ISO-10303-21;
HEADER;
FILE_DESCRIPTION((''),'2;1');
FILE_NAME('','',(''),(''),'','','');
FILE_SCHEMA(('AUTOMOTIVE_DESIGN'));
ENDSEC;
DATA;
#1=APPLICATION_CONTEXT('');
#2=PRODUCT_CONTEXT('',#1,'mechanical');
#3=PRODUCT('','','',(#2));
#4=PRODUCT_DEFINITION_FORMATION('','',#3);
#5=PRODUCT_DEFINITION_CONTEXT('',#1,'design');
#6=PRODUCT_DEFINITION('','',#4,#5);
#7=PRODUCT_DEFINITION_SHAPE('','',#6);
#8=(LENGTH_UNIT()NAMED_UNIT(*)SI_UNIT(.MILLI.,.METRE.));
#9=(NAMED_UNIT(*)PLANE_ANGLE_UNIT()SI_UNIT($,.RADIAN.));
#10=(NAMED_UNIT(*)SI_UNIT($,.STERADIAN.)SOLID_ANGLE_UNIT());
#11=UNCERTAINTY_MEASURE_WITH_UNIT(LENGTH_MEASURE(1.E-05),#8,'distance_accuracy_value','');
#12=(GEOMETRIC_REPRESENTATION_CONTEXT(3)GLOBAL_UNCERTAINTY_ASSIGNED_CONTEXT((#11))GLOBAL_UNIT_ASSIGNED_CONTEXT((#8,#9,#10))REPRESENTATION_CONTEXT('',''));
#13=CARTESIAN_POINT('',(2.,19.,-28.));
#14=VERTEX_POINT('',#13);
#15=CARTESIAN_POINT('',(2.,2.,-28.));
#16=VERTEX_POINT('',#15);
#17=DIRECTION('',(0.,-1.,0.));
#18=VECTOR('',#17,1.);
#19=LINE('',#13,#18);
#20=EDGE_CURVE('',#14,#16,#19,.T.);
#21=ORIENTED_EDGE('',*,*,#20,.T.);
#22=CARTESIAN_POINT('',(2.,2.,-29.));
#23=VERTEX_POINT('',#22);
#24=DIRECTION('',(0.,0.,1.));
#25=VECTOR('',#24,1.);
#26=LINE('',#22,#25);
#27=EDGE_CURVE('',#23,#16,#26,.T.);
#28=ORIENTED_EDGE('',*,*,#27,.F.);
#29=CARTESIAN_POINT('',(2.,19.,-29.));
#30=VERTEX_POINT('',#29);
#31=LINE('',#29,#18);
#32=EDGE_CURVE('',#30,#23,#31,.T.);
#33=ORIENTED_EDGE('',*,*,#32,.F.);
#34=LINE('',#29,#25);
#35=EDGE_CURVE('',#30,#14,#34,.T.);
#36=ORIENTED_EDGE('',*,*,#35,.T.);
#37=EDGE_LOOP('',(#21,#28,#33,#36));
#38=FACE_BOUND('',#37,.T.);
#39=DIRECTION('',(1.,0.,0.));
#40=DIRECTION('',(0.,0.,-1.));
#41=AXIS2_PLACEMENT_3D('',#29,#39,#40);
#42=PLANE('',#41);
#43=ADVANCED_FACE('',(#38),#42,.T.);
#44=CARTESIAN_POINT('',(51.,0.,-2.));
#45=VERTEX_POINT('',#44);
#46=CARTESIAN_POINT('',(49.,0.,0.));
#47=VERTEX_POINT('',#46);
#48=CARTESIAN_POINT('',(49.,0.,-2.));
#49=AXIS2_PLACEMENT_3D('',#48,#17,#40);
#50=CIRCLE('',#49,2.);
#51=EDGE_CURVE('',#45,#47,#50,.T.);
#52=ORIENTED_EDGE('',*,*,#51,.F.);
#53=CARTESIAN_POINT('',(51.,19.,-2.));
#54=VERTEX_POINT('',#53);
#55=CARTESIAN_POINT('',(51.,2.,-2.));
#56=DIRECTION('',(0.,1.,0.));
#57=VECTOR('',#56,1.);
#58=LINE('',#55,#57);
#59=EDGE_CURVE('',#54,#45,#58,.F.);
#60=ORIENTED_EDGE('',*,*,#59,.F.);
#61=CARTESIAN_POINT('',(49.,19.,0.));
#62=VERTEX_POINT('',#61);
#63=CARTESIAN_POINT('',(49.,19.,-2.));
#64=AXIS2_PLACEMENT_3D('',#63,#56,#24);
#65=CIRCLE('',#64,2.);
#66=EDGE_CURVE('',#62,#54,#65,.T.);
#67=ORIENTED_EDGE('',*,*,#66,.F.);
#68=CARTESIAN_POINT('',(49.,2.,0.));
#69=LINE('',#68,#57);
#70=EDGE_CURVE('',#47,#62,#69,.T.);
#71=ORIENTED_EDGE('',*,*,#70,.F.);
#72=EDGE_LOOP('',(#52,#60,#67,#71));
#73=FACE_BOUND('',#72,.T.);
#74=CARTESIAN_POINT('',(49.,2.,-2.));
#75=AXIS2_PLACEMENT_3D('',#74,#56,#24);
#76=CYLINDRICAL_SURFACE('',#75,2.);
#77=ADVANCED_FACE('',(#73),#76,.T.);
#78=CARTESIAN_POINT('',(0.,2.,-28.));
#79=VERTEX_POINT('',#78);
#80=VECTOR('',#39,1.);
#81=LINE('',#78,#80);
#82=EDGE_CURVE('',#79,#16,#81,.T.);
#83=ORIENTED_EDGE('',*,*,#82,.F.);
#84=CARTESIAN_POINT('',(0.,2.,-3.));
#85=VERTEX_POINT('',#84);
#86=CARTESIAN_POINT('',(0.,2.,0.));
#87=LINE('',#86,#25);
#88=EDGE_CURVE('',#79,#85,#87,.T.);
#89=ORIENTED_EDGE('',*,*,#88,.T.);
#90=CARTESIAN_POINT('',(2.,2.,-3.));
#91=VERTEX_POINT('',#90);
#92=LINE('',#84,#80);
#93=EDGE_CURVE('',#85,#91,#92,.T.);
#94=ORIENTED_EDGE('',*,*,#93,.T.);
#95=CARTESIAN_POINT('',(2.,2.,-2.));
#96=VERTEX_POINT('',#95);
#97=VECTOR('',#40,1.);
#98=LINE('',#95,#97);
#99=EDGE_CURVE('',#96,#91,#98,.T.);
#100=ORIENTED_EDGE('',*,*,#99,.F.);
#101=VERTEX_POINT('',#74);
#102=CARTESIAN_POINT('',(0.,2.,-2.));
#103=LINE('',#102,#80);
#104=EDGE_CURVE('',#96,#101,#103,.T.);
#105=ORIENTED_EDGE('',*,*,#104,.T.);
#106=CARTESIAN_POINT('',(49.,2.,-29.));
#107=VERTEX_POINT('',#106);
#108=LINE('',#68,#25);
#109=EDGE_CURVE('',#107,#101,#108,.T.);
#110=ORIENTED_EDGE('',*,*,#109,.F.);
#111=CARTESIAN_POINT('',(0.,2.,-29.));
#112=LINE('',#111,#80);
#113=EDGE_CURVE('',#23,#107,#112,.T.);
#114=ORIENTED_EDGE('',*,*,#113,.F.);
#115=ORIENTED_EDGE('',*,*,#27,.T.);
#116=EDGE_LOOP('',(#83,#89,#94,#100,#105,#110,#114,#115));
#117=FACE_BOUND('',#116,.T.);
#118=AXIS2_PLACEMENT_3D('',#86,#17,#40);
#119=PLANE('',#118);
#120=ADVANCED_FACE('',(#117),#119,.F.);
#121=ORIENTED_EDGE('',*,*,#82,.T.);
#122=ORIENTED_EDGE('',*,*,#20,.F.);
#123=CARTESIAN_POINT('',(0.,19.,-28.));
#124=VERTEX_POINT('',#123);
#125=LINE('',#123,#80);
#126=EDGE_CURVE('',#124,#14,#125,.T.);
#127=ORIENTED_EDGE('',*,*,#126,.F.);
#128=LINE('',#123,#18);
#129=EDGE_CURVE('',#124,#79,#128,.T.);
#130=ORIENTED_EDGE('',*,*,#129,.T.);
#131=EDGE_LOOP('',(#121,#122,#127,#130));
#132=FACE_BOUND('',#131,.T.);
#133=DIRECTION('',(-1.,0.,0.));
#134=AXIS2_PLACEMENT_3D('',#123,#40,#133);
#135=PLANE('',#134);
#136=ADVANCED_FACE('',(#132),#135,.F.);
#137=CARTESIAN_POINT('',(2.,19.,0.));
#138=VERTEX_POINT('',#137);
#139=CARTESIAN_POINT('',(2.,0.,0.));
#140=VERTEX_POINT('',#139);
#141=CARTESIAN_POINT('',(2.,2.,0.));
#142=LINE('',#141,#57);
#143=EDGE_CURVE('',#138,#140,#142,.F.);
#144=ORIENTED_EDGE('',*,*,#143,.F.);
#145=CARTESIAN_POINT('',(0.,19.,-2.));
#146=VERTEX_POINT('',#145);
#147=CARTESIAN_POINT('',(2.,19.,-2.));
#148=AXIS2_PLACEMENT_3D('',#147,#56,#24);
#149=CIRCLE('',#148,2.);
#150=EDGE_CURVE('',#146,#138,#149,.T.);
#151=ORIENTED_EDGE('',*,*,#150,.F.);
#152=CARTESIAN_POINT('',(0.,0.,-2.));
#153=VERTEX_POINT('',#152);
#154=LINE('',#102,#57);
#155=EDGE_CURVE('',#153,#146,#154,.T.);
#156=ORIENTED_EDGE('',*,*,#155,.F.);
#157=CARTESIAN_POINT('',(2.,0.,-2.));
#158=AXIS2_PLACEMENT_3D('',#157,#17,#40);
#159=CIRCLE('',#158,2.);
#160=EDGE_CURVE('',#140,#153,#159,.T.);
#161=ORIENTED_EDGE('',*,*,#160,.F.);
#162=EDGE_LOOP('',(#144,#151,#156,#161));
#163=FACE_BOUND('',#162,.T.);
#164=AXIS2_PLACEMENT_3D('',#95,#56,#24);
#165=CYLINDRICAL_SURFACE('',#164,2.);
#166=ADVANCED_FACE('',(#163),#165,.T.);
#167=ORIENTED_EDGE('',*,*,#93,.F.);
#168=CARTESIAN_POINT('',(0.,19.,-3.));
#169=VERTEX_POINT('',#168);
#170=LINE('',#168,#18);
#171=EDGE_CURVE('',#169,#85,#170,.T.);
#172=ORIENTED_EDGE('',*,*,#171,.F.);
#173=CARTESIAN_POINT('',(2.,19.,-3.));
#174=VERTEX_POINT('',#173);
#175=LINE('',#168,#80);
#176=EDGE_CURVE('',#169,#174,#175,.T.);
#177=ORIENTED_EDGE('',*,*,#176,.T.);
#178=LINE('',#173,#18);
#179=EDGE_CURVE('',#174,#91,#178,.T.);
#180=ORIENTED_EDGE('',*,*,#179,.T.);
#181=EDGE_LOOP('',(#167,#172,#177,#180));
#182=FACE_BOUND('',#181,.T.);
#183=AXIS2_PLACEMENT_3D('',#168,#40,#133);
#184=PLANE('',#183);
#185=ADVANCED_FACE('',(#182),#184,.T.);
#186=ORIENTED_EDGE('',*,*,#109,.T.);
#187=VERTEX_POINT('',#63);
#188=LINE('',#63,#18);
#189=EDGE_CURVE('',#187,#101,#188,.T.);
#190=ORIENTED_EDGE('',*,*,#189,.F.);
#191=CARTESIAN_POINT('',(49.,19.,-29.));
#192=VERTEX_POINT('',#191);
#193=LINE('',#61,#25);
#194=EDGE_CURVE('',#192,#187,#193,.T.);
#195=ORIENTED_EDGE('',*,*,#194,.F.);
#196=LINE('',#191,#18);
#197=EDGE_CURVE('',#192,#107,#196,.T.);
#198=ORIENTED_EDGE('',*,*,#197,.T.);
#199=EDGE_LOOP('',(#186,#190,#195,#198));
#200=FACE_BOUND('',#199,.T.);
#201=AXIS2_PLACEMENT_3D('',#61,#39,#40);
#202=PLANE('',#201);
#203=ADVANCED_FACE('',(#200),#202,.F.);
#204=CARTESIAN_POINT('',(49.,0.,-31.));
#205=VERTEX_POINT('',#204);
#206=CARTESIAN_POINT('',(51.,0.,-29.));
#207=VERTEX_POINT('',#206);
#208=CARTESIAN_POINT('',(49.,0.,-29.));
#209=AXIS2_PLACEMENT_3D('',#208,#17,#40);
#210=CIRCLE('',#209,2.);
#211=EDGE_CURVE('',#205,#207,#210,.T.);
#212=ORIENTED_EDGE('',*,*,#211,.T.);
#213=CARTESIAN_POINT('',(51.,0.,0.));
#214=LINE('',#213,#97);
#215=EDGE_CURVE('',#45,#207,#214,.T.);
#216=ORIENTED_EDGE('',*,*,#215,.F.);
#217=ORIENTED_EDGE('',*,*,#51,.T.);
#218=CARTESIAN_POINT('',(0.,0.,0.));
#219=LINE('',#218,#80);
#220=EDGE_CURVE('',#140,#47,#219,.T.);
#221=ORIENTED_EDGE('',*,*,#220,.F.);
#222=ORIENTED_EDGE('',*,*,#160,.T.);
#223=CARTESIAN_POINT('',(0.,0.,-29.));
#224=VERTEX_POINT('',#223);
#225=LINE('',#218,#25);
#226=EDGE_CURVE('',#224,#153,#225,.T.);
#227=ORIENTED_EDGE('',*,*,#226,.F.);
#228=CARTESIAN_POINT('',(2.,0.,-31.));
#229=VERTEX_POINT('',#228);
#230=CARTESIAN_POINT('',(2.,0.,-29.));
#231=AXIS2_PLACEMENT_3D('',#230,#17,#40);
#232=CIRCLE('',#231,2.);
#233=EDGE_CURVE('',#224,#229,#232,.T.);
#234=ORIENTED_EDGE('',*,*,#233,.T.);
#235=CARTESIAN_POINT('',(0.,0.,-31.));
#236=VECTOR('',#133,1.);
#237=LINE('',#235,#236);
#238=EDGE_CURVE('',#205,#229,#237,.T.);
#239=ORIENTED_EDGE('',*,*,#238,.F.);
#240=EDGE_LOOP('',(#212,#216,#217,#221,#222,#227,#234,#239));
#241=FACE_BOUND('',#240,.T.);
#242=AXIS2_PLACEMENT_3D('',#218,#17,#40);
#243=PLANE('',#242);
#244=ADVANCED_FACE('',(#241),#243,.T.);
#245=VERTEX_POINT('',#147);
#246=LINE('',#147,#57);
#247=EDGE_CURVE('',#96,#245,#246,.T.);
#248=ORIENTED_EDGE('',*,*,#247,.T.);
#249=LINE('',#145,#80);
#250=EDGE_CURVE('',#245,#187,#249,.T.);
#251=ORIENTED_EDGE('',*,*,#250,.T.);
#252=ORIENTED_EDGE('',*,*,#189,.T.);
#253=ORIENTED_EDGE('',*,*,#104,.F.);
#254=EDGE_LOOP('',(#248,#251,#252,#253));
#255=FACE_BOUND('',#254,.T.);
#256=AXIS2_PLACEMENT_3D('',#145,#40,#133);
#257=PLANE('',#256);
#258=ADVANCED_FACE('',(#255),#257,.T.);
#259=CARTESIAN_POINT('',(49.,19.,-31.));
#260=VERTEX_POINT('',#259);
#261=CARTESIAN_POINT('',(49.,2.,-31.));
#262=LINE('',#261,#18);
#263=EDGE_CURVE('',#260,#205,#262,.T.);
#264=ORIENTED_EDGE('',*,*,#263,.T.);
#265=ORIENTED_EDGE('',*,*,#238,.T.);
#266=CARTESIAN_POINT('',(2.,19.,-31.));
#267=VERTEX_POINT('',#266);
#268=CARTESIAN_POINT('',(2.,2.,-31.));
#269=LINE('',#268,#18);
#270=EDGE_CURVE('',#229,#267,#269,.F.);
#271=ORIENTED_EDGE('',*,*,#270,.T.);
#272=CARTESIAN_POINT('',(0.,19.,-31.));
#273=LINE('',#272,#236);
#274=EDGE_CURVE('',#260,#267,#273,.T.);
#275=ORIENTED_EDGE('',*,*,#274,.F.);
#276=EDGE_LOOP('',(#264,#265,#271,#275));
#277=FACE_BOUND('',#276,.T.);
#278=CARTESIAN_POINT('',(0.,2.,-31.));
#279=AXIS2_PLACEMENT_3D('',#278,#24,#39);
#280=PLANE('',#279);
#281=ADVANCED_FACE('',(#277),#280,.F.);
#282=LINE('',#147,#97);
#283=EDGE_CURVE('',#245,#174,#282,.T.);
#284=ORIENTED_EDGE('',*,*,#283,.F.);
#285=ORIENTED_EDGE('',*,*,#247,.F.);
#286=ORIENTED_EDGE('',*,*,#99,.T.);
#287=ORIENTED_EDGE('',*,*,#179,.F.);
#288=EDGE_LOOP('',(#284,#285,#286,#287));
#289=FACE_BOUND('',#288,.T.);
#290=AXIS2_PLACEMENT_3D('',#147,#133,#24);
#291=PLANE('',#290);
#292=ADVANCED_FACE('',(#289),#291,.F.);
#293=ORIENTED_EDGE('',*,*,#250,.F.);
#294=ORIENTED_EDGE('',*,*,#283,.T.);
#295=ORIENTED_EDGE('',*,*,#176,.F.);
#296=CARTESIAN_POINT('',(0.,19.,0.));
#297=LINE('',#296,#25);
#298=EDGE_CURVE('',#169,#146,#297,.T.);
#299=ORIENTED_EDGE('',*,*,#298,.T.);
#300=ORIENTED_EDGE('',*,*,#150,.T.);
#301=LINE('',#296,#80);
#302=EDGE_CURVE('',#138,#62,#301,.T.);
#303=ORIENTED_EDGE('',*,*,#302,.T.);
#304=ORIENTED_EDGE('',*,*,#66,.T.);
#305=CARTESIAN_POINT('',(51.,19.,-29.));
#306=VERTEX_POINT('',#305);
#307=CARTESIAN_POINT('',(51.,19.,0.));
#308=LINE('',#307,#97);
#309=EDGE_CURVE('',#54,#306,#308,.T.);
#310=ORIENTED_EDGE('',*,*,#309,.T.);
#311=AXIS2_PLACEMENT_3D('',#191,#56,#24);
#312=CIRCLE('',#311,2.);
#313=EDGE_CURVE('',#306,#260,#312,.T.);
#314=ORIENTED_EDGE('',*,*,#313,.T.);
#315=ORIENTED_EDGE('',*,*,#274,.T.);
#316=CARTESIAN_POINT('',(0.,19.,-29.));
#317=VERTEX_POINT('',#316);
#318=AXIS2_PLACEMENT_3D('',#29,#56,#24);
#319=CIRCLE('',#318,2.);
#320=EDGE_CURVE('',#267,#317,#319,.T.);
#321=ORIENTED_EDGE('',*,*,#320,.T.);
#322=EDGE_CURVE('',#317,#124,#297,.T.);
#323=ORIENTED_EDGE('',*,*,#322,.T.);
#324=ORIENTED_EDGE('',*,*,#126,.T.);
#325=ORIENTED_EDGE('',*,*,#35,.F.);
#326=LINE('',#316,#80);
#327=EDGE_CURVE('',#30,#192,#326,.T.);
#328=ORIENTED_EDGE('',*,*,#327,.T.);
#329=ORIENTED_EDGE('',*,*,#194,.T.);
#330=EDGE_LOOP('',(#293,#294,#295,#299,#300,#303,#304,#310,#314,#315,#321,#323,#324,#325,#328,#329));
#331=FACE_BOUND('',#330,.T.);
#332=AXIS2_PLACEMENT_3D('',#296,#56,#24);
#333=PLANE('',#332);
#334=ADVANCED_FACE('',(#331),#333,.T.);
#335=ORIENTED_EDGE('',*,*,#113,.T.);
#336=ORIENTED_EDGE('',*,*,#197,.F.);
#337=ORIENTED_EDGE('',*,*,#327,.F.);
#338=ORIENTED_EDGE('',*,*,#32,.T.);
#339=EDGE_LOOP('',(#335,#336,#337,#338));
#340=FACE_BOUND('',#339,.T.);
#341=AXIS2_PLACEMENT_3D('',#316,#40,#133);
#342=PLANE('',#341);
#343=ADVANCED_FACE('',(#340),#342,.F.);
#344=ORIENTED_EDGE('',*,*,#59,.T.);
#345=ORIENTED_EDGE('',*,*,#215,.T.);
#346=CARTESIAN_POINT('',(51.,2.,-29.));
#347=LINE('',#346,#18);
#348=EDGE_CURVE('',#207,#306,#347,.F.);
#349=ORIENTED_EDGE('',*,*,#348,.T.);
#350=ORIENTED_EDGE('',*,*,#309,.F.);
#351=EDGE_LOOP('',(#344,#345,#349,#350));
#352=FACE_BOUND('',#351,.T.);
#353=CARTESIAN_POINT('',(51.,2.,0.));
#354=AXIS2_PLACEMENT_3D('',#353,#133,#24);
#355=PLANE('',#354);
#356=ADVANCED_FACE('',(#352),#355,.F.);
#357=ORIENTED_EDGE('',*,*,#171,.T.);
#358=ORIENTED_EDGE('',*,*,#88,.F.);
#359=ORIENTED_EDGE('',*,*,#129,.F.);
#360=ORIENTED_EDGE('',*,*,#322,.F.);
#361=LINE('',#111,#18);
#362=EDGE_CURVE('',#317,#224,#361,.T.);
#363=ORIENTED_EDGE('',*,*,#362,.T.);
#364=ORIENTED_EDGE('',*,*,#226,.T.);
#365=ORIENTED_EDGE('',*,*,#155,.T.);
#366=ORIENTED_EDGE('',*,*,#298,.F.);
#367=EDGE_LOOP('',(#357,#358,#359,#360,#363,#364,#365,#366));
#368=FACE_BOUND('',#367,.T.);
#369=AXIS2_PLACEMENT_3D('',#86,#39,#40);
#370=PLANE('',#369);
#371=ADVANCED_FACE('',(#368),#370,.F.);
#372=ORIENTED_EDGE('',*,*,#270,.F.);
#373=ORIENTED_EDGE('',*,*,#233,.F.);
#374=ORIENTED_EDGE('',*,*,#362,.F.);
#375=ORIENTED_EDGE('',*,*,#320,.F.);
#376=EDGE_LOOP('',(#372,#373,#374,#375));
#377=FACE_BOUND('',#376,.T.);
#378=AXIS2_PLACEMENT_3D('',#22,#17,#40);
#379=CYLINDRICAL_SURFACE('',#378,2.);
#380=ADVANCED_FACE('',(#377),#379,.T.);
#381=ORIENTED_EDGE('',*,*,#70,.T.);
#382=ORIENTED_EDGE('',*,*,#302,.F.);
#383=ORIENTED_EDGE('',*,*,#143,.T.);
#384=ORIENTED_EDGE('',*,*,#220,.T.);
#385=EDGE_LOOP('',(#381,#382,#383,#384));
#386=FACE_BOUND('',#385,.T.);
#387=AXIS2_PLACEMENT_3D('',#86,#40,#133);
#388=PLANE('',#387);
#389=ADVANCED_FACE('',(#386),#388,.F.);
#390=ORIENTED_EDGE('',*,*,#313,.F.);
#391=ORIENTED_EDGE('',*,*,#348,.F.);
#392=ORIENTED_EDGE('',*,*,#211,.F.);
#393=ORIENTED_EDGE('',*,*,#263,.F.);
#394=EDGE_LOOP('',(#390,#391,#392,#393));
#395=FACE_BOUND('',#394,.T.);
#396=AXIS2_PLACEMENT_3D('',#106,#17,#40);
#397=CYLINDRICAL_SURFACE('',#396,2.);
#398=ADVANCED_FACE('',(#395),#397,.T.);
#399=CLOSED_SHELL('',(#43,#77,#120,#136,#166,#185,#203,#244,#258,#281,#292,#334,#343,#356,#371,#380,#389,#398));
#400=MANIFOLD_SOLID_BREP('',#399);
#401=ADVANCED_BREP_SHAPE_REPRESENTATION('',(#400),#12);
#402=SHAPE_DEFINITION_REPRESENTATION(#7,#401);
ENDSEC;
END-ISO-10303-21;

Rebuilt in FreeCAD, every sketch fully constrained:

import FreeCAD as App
import Part
import Sketcher

V = App.Vector
Q = App.Units.Quantity


def edges_at(feature, points):
    """Names of the edges that pass closest to the given points."""
    edges = feature.Shape.Edges
    near = lambda p: min(range(len(edges)), key=lambda i: edges[i].distToShape(Part.Vertex(*p))[0])
    return sorted({f"Edge{near(p) + 1}" for p in points})

doc = App.newDocument("Part")
body = doc.addObject("PartDesign::Body", "Body")

# Sketch on XZ plane
sketch1 = body.newObject("Sketcher::SketchObject", "Sketch")
sketch1.AttachmentSupport = (doc.getObject("XZ_Plane"), [""])
sketch1.MapMode = "FlatFace"
sketch1.addGeometry(Part.LineSegment(V(0, -31, 0), V(0, 0, 0)), False)
sketch1.addGeometry(Part.LineSegment(V(0, 0, 0), V(51, 0, 0)), False)
sketch1.addGeometry(Part.LineSegment(V(51, 0, 0), V(51, -31, 0)), False)
sketch1.addGeometry(Part.LineSegment(V(51, -31, 0), V(0, -31, 0)), False)
sketch1.addConstraint(Sketcher.Constraint("Coincident", 0, 2, 1, 1))
sketch1.addConstraint(Sketcher.Constraint("Coincident", 1, 2, 2, 1))
sketch1.addConstraint(Sketcher.Constraint("Coincident", 2, 2, 3, 1))
sketch1.addConstraint(Sketcher.Constraint("Coincident", 3, 2, 0, 1))
sketch1.addConstraint(Sketcher.Constraint("Vertical", 0))
sketch1.addConstraint(Sketcher.Constraint("Horizontal", 1))
sketch1.addConstraint(Sketcher.Constraint("Vertical", 2))
sketch1.addConstraint(Sketcher.Constraint("Horizontal", 3))
sketch1.addConstraint(Sketcher.Constraint("Coincident", 0, 2, -1, 1))
sketch1.addConstraint(Sketcher.Constraint("DistanceX", 1, 1, 1, 2, Q("51 mm")))
sketch1.addConstraint(Sketcher.Constraint("DistanceY", 0, 1, 0, 2, Q("31 mm")))
pad1 = body.newObject("PartDesign::Pad", "Pad")
pad1.Profile = sketch1
pad1.Length = 2
pad1.Reversed = True

# Sketch on XZ plane
sketch2 = body.newObject("Sketcher::SketchObject", "Sketch001")
sketch2.AttachmentSupport = (doc.getObject("XZ_Plane"), [""])
sketch2.MapMode = "FlatFace"
sketch2.AttachmentOffset = App.Placement(V(0, 0, -2), App.Rotation())
sketch2.addGeometry(Part.LineSegment(V(51, 0, 0), V(51, -31, 0)), False)
sketch2.addGeometry(Part.LineSegment(V(51, -31, 0), V(0, -31, 0)), False)
sketch2.addGeometry(Part.LineSegment(V(0, -31, 0), V(0, -28, 0)), False)
sketch2.addGeometry(Part.LineSegment(V(0, -28, 0), V(2, -28, 0)), False)
sketch2.addGeometry(Part.LineSegment(V(2, -28, 0), V(2, -29, 0)), False)
sketch2.addGeometry(Part.LineSegment(V(2, -29, 0), V(49, -29, 0)), False)
sketch2.addGeometry(Part.LineSegment(V(49, -29, 0), V(49, -2, 0)), False)
sketch2.addGeometry(Part.LineSegment(V(49, -2, 0), V(2, -2, 0)), False)
sketch2.addGeometry(Part.LineSegment(V(2, -2, 0), V(2, -3, 0)), False)
sketch2.addGeometry(Part.LineSegment(V(2, -3, 0), V(0, -3, 0)), False)
sketch2.addGeometry(Part.LineSegment(V(0, -3, 0), V(0, 0, 0)), False)
sketch2.addGeometry(Part.LineSegment(V(0, 0, 0), V(51, 0, 0)), False)
sketch2.addConstraint(Sketcher.Constraint("Coincident", 0, 2, 1, 1))
sketch2.addConstraint(Sketcher.Constraint("Coincident", 1, 2, 2, 1))
sketch2.addConstraint(Sketcher.Constraint("Coincident", 2, 2, 3, 1))
sketch2.addConstraint(Sketcher.Constraint("Coincident", 3, 2, 4, 1))
sketch2.addConstraint(Sketcher.Constraint("Coincident", 4, 2, 5, 1))
sketch2.addConstraint(Sketcher.Constraint("Coincident", 5, 2, 6, 1))
sketch2.addConstraint(Sketcher.Constraint("Coincident", 6, 2, 7, 1))
sketch2.addConstraint(Sketcher.Constraint("Coincident", 7, 2, 8, 1))
sketch2.addConstraint(Sketcher.Constraint("Coincident", 8, 2, 9, 1))
sketch2.addConstraint(Sketcher.Constraint("Coincident", 9, 2, 10, 1))
sketch2.addConstraint(Sketcher.Constraint("Coincident", 10, 2, 11, 1))
sketch2.addConstraint(Sketcher.Constraint("Coincident", 11, 2, 0, 1))
sketch2.addConstraint(Sketcher.Constraint("Vertical", 0))
sketch2.addConstraint(Sketcher.Constraint("Horizontal", 1))
sketch2.addConstraint(Sketcher.Constraint("Vertical", 2))
sketch2.addConstraint(Sketcher.Constraint("Horizontal", 3))
sketch2.addConstraint(Sketcher.Constraint("Vertical", 4))
sketch2.addConstraint(Sketcher.Constraint("Horizontal", 5))
sketch2.addConstraint(Sketcher.Constraint("Vertical", 6))
sketch2.addConstraint(Sketcher.Constraint("Horizontal", 7))
sketch2.addConstraint(Sketcher.Constraint("Vertical", 8))
sketch2.addConstraint(Sketcher.Constraint("Horizontal", 9))
sketch2.addConstraint(Sketcher.Constraint("Vertical", 10))
sketch2.addConstraint(Sketcher.Constraint("Horizontal", 11))
sketch2.addConstraint(Sketcher.Constraint("Coincident", 10, 2, -1, 1))
sketch2.addConstraint(Sketcher.Constraint("PointOnObject", 1, 2, -2))
sketch2.addConstraint(Sketcher.Constraint("Vertical", 4, 2, 7, 2))
sketch2.addConstraint(Sketcher.Constraint("Equal", 4, 8))
sketch2.addConstraint(Sketcher.Constraint("Equal", 2, 10))
sketch2.addConstraint(Sketcher.Constraint("DistanceX", 1, 2, 1, 1, Q("51 mm")))
sketch2.addConstraint(Sketcher.Constraint("DistanceX", 3, 1, 3, 2, Q("2 mm")))
sketch2.addConstraint(Sketcher.Constraint("DistanceX", 5, 1, 5, 2, Q("47 mm")))
sketch2.addConstraint(Sketcher.Constraint("DistanceY", 0, 2, 0, 1, Q("31 mm")))
sketch2.addConstraint(Sketcher.Constraint("DistanceY", 2, 1, 2, 2, Q("3 mm")))
sketch2.addConstraint(Sketcher.Constraint("DistanceY", 4, 2, 4, 1, Q("1 mm")))
pad2 = body.newObject("PartDesign::Pad", "Pad001")
pad2.Profile = sketch2
pad2.Length = 17
pad2.Reversed = True
doc.recompute()

fillet = body.newObject("PartDesign::Fillet", "Fillet")
fillet.Base = (pad2, edges_at(pad2, [(51, 9.5, 0)]))
fillet.Radius = 2
doc.recompute()

fillet2 = body.newObject("PartDesign::Fillet", "Fillet001")
fillet2.Base = (fillet, edges_at(fillet, [(51, 9.5, -31)]))
fillet2.Radius = 2
doc.recompute()

fillet3 = body.newObject("PartDesign::Fillet", "Fillet002")
fillet3.Base = (fillet2, edges_at(fillet2, [(0, 9.5, 0)]))
fillet3.Radius = 2
doc.recompute()

fillet4 = body.newObject("PartDesign::Fillet", "Fillet003")
fillet4.Base = (fillet3, edges_at(fillet3, [(0, 9.5, -31)]))
fillet4.Radius = 2

doc.recompute()
